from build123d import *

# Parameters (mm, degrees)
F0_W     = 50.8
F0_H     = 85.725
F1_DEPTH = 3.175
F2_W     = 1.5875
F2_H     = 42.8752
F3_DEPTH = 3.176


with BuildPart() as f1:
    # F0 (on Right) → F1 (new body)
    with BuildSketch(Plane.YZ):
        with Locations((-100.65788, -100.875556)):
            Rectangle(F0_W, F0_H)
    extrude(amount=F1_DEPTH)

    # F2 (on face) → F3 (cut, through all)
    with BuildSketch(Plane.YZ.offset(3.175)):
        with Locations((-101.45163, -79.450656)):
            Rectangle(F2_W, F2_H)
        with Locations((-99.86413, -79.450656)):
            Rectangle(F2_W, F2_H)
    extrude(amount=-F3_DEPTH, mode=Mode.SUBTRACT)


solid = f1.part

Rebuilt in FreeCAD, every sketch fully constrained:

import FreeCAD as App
import Part
import Sketcher

V = App.Vector
Q = App.Units.Quantity


def add_polygon(sketch, points):
    """Adds a closed chain of lines whose ends are joined by coincident constraints."""
    first, n = sketch.GeometryCount, len(points)
    for a, b in zip(points, points[1:] + points[:1]):
        sketch.addGeometry(Part.LineSegment(App.Vector(*a, 0), App.Vector(*b, 0)), False)
    for i in range(n):
        sketch.addConstraint(Sketcher.Constraint("Coincident", first + i, 2, first + (i + 1) % n, 1))

doc = App.newDocument("Part")
body = doc.addObject("PartDesign::Body", "Body")

# Sketch on YZ plane
sketch1 = doc.addObject("Sketcher::SketchObject", "Sketch")
body.addObject(sketch1)
sketch1.AttachmentSupport = (doc.YZ_Plane, [""])
sketch1.MapMode = "FlatFace"
add_polygon(sketch1, [(-126, -58), (-126, -144), (-75, -144), (-75, -58)])  # lines 0-3
sketch1.addConstraint(Sketcher.Constraint("Vertical", 0))
sketch1.addConstraint(Sketcher.Constraint("Horizontal", 1))
sketch1.addConstraint(Sketcher.Constraint("Vertical", 2))
sketch1.addConstraint(Sketcher.Constraint("Horizontal", 3))
sketch1.addConstraint(Sketcher.Constraint("DistanceX", 1, 1, 1, 2, Q("2 in")))
sketch1.addConstraint(Sketcher.Constraint("DistanceY", 0, 2, 0, 1, Q("3.375 in")))
sketch1.addConstraint(Sketcher.Constraint("DistanceX", 0, 2, -1, 1, 126.05788))
sketch1.addConstraint(Sketcher.Constraint("DistanceY", 0, 2, -1, 1, 143.738056))
pad1 = doc.addObject("PartDesign::Pad", "Pad")
body.addObject(pad1)
pad1.Profile = sketch1
pad1.Length = Q("0.125 in")

# Sketch on YZ plane
sketch2 = doc.addObject("Sketcher::SketchObject", "Sketch001")
body.addObject(sketch2)
sketch2.AttachmentSupport = (doc.YZ_Plane, [""])
sketch2.MapMode = "FlatFace"
sketch2.AttachmentOffset = App.Placement(V(0, 0, 0.125 * 25.4), App.Rotation())
add_polygon(sketch2, [(-102.2, -58), (-102.2, -100.9), (-99.1, -100.9), (-99.1, -58)])  # lines 0-3
sketch2.addConstraint(Sketcher.Constraint("Vertical", 0))
sketch2.addConstraint(Sketcher.Constraint("Horizontal", 1))
sketch2.addConstraint(Sketcher.Constraint("Vertical", 2))
sketch2.addConstraint(Sketcher.Constraint("Horizontal", 3))
sketch2.addConstraint(Sketcher.Constraint("DistanceX", 1, 1, 1, 2, Q("0.125 in")))
sketch2.addConstraint(Sketcher.Constraint("DistanceY", 0, 2, 0, 1, Q("1.688 in")))
sketch2.addConstraint(Sketcher.Constraint("DistanceX", 0, 2, -1, 1, 102.24538))
sketch2.addConstraint(Sketcher.Constraint("DistanceY", 0, 2, -1, 1, 100.888256))
pocket1 = doc.addObject("PartDesign::Pocket", "Pocket")
body.addObject(pocket1)
pocket1.Profile = sketch2
pocket1.Type = "ThroughAll"

doc.recompute()
